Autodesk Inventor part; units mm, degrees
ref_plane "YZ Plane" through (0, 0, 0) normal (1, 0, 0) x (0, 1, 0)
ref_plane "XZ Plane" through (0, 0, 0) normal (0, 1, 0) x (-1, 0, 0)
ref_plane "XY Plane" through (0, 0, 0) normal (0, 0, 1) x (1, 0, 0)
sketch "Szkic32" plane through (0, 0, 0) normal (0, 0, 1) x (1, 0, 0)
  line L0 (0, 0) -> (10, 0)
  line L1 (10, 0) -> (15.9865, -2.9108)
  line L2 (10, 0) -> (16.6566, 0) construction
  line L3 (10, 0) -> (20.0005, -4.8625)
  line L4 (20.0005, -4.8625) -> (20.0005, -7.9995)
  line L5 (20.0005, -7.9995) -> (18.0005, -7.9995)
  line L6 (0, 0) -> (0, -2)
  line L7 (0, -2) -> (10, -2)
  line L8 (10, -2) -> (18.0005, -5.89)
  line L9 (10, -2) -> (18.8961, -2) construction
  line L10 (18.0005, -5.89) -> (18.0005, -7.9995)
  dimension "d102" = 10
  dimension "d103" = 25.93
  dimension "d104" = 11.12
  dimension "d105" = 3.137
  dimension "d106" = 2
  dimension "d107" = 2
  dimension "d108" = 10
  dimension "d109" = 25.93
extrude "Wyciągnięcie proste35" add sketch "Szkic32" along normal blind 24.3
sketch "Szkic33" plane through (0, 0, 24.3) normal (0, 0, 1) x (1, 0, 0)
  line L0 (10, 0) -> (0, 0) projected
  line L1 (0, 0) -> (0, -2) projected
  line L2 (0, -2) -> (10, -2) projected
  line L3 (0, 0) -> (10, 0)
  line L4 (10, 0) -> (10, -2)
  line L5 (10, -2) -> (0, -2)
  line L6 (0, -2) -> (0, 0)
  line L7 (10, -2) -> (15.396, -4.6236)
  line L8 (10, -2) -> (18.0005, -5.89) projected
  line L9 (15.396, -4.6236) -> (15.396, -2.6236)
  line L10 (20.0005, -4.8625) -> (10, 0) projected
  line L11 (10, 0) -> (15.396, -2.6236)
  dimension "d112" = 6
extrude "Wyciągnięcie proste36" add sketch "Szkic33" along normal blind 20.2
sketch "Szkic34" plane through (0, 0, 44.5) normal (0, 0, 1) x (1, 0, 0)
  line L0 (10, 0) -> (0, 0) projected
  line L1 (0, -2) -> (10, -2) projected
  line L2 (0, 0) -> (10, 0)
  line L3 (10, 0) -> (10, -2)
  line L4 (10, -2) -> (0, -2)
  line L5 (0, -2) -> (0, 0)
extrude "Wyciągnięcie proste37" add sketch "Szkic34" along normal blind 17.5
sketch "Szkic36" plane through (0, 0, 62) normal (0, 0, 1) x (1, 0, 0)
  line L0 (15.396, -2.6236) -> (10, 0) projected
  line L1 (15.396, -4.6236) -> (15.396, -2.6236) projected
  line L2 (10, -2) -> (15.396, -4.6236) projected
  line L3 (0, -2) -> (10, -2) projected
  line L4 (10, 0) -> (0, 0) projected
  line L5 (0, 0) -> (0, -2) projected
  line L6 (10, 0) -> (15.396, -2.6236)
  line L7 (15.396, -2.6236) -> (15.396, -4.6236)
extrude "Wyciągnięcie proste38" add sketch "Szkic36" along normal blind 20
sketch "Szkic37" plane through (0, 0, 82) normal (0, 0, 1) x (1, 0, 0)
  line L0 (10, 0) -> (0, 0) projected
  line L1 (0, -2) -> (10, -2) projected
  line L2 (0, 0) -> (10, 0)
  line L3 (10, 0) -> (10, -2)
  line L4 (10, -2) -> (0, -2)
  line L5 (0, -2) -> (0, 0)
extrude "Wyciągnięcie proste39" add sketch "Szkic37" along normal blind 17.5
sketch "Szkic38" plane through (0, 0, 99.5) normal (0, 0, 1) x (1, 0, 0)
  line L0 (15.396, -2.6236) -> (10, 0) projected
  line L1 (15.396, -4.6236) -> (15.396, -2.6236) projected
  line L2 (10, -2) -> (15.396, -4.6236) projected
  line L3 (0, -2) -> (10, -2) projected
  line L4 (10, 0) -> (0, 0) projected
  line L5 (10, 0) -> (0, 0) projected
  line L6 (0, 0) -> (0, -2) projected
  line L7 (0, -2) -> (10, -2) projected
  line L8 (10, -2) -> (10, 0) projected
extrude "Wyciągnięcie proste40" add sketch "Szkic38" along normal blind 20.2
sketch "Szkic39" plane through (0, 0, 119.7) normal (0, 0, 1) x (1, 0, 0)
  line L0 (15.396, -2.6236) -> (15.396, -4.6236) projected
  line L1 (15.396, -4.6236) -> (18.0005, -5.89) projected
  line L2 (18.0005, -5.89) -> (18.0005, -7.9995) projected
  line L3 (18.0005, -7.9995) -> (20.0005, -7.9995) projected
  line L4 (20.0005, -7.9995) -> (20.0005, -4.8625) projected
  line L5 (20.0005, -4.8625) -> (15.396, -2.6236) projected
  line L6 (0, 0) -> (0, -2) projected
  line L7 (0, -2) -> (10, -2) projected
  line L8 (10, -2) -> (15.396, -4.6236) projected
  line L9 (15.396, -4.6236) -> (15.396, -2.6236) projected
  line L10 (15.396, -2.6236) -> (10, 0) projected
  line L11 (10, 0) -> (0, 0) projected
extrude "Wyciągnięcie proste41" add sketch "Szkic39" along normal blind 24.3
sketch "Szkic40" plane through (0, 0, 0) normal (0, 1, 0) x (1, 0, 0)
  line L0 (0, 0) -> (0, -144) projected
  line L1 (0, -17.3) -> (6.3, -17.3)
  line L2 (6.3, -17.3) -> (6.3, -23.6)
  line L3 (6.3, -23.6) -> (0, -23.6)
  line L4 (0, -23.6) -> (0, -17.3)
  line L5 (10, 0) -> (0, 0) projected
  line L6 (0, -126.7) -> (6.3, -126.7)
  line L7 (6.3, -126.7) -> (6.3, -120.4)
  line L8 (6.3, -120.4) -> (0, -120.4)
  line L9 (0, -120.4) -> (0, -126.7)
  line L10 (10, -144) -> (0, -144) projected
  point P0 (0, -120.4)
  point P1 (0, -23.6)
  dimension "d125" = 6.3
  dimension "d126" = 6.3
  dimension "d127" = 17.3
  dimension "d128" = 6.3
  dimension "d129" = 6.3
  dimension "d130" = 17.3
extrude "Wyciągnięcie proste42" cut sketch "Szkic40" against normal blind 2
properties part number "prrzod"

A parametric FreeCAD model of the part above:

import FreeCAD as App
import Part
import Sketcher
from FreeCAD import Vector
Q = App.Units.Quantity

doc = App.newDocument("Part")
body = doc.addObject("PartDesign::Body", "Body")

sketch1 = body.newObject("Sketcher::SketchObject", "Sketch")
sketch1.AttachmentSupport = (doc.getObject("XY_Plane"), [""])
sketch1.MapMode = "FlatFace"
sketch1.addGeometry(Part.LineSegment(Vector(10, 0, 0), Vector(0, 0, 0)), False)
sketch1.addGeometry(Part.LineSegment(Vector(0, 0, 0), Vector(0, -2, 0)), False)
sketch1.addGeometry(Part.LineSegment(Vector(0, -2, 0), Vector(10, -2, 0)), False)
sketch1.addGeometry(Part.LineSegment(Vector(10, -2, 0), Vector(18, -5.9, 0)), False)
sketch1.addGeometry(Part.LineSegment(Vector(18, -5.9, 0), Vector(18, -8, 0)), False)
sketch1.addGeometry(Part.LineSegment(Vector(18, -8, 0), Vector(20, -8, 0)), False)
sketch1.addGeometry(Part.LineSegment(Vector(20, -8, 0), Vector(20, -4.9, 0)), False)
sketch1.addGeometry(Part.LineSegment(Vector(20, -4.9, 0), Vector(16, -2.9, 0)), False)
sketch1.addGeometry(Part.LineSegment(Vector(16, -2.9, 0), Vector(10, 0, 0)), False)
sketch1.addConstraint(Sketcher.Constraint("Coincident", 0, 2, 1, 1))
sketch1.addConstraint(Sketcher.Constraint("Coincident", 1, 2, 2, 1))
sketch1.addConstraint(Sketcher.Constraint("Coincident", 2, 2, 3, 1))
sketch1.addConstraint(Sketcher.Constraint("Coincident", 3, 2, 4, 1))
sketch1.addConstraint(Sketcher.Constraint("Coincident", 4, 2, 5, 1))
sketch1.addConstraint(Sketcher.Constraint("Coincident", 5, 2, 6, 1))
sketch1.addConstraint(Sketcher.Constraint("Coincident", 6, 2, 7, 1))
sketch1.addConstraint(Sketcher.Constraint("Coincident", 7, 2, 8, 1))
sketch1.addConstraint(Sketcher.Constraint("Coincident", 8, 2, 0, 1))
sketch1.addConstraint(Sketcher.Constraint("Horizontal", 0))
sketch1.addConstraint(Sketcher.Constraint("Vertical", 1))
sketch1.addConstraint(Sketcher.Constraint("Horizontal", 2))
sketch1.addConstraint(Sketcher.Constraint("Vertical", 4))
sketch1.addConstraint(Sketcher.Constraint("Horizontal", 5))
sketch1.addConstraint(Sketcher.Constraint("Vertical", 6))
sketch1.addConstraint(Sketcher.Constraint("Coincident", 0, 2, -1, 1))
sketch1.addConstraint(Sketcher.Constraint("Parallel", 3, 7))
sketch1.addConstraint(Sketcher.Constraint("Parallel", 7, 8))
sketch1.addConstraint(Sketcher.Constraint("Vertical", 2, 2, 8, 2))
sketch1.addConstraint(Sketcher.Constraint("Equal", 5, 1))
sketch1.addConstraint(Sketcher.Constraint("DistanceX", 0, 2, 0, 1, 10.0))
sketch1.addConstraint(Sketcher.Constraint("DistanceX", 5, 1, 5, 2, 2.0))
sketch1.addConstraint(Sketcher.Constraint("Angle", 3, Q("-25.93 deg")))
sketch1.addConstraint(Sketcher.Constraint("DistanceY", 6, 1, 6, 2, 3.137))
sketch1.addConstraint(Sketcher.Constraint("DistanceX", 2, 2, 5, 2, 10.0005))
sketch1.addConstraint(Sketcher.Constraint("DistanceX", 7, 2, 3, 2, 2.014))
pad1 = body.newObject("PartDesign::Pad", "Pad")
pad1.Profile = sketch1
pad1.Length = 24.3

sketch2 = body.newObject("Sketcher::SketchObject", "Sketch001")
sketch2.AttachmentSupport = (doc.getObject("XY_Plane"), [""])
sketch2.MapMode = "FlatFace"
sketch2.AttachmentOffset = App.Placement(Vector(0, 0, 24.3), App.Rotation())
sketch2.addGeometry(Part.LineSegment(Vector(0, -2, 0), Vector(10, -2, 0)), False)
sketch2.addGeometry(Part.LineSegment(Vector(10, -2, 0), Vector(15.4, -4.6, 0)), False)
sketch2.addGeometry(Part.LineSegment(Vector(15.4, -4.6, 0), Vector(15.4, -2.6, 0)), False)
sketch2.addGeometry(Part.LineSegment(Vector(15.4, -2.6, 0), Vector(10, 0, 0)), False)
sketch2.addGeometry(Part.LineSegment(Vector(10, 0, 0), Vector(0, 0, 0)), False)
sketch2.addGeometry(Part.LineSegment(Vector(0, 0, 0), Vector(0, -2, 0)), False)
sketch2.addConstraint(Sketcher.Constraint("Coincident", 0, 2, 1, 1))
sketch2.addConstraint(Sketcher.Constraint("Coincident", 1, 2, 2, 1))
sketch2.addConstraint(Sketcher.Constraint("Coincident", 2, 2, 3, 1))
sketch2.addConstraint(Sketcher.Constraint("Coincident", 3, 2, 4, 1))
sketch2.addConstraint(Sketcher.Constraint("Coincident", 4, 2, 5, 1))
sketch2.addConstraint(Sketcher.Constraint("Coincident", 5, 2, 0, 1))
sketch2.addConstraint(Sketcher.Constraint("Horizontal", 0))
sketch2.addConstraint(Sketcher.Constraint("Vertical", 2))
sketch2.addConstraint(Sketcher.Constraint("Horizontal", 4))
sketch2.addConstraint(Sketcher.Constraint("Vertical", 5))
sketch2.addConstraint(Sketcher.Constraint("Coincident", 4, 2, -1, 1))
sketch2.addConstraint(Sketcher.Constraint("Parallel", 1, 3))
sketch2.addConstraint(Sketcher.Constraint("Vertical", 0, 2, 3, 2))
sketch2.addConstraint(Sketcher.Constraint("Distance", 1, 6.0))
sketch2.addConstraint(Sketcher.Constraint("DistanceX", 0, 1, 0, 2, 10.0))
sketch2.addConstraint(Sketcher.Constraint("DistanceY", 2, 1, 2, 2, 2.0))
sketch2.addConstraint(Sketcher.Constraint("Angle", 1, Q("-25.9296 deg")))
pad2 = body.newObject("PartDesign::Pad", "Pad001")
pad2.Profile = sketch2
pad2.Length = 20.2

sketch3 = body.newObject("Sketcher::SketchObject", "Sketch002")
sketch3.AttachmentSupport = (doc.getObject("XY_Plane"), [""])
sketch3.MapMode = "FlatFace"
sketch3.AttachmentOffset = App.Placement(Vector(0, 0, 44.5), App.Rotation())
sketch3.addGeometry(Part.LineSegment(Vector(10, -2, 0), Vector(10, 0, 0)), False)
sketch3.addGeometry(Part.LineSegment(Vector(10, 0, 0), Vector(0, 0, 0)), False)
sketch3.addGeometry(Part.LineSegment(Vector(0, 0, 0), Vector(0, -2, 0)), False)
sketch3.addGeometry(Part.LineSegment(Vector(0, -2, 0), Vector(10, -2, 0)), False)
sketch3.addConstraint(Sketcher.Constraint("Coincident", 0, 2, 1, 1))
sketch3.addConstraint(Sketcher.Constraint("Coincident", 1, 2, 2, 1))
sketch3.addConstraint(Sketcher.Constraint("Coincident", 2, 2, 3, 1))
sketch3.addConstraint(Sketcher.Constraint("Coincident", 3, 2, 0, 1))
sketch3.addConstraint(Sketcher.Constraint("Vertical", 0))
sketch3.addConstraint(Sketcher.Constraint("Horizontal", 1))
sketch3.addConstraint(Sketcher.Constraint("Vertical", 2))
sketch3.addConstraint(Sketcher.Constraint("Horizontal", 3))
sketch3.addConstraint(Sketcher.Constraint("Coincident", 1, 2, -1, 1))
sketch3.addConstraint(Sketcher.Constraint("DistanceX", 1, 2, 1, 1, 10.0))
sketch3.addConstraint(Sketcher.Constraint("DistanceY", 0, 1, 0, 2, 2.0))
pad3 = body.newObject("PartDesign::Pad", "Pad002")
pad3.Profile = sketch3
pad3.Length = 17.5

sketch4 = body.newObject("Sketcher::SketchObject", "Sketch003")
sketch4.AttachmentSupport = (doc.getObject("XY_Plane"), [""])
sketch4.MapMode = "FlatFace"
sketch4.AttachmentOffset = App.Placement(Vector(0, 0, 62), App.Rotation())
sketch4.addGeometry(Part.LineSegment(Vector(15.4, -4.6, 0), Vector(15.4, -2.6, 0)), False)
sketch4.addGeometry(Part.LineSegment(Vector(15.4, -2.6, 0), Vector(10, 0, 0)), False)
sketch4.addGeometry(Part.LineSegment(Vector(10, 0, 0), Vector(0, 0, 0)), False)
sketch4.addGeometry(Part.LineSegment(Vector(0, 0, 0), Vector(0, -2, 0)), False)
sketch4.addGeometry(Part.LineSegment(Vector(0, -2, 0), Vector(10, -2, 0)), False)
sketch4.addGeometry(Part.LineSegment(Vector(10, -2, 0), Vector(15.4, -4.6, 0)), False)
sketch4.addConstraint(Sketcher.Constraint("Coincident", 0, 2, 1, 1))
sketch4.addConstraint(Sketcher.Constraint("Coincident", 1, 2, 2, 1))
sketch4.addConstraint(Sketcher.Constraint("Coincident", 2, 2, 3, 1))
sketch4.addConstraint(Sketcher.Constraint("Coincident", 3, 2, 4, 1))
sketch4.addConstraint(Sketcher.Constraint("Coincident", 4, 2, 5, 1))
sketch4.addConstraint(Sketcher.Constraint("Coincident", 5, 2, 0, 1))
sketch4.addConstraint(Sketcher.Constraint("Vertical", 0))
sketch4.addConstraint(Sketcher.Constraint("Horizontal", 2))
sketch4.addConstraint(Sketcher.Constraint("Vertical", 3))
sketch4.addConstraint(Sketcher.Constraint("Horizontal", 4))
sketch4.addConstraint(Sketcher.Constraint("Coincident", 2, 2, -1, 1))
sketch4.addConstraint(Sketcher.Constraint("Parallel", 1, 5))
sketch4.addConstraint(Sketcher.Constraint("Vertical", 1, 2, 4, 2))
sketch4.addConstraint(Sketcher.Constraint("DistanceX", 2, 2, 2, 1, 10.0))
sketch4.addConstraint(Sketcher.Constraint("DistanceY", 0, 1, 0, 2, 2.0))
sketch4.addConstraint(Sketcher.Constraint("Distance", 1, 6.0))
sketch4.addConstraint(Sketcher.Constraint("Angle", 1, Q("154.0704 deg")))
pad4 = body.newObject("PartDesign::Pad", "Pad003")
pad4.Profile = sketch4
pad4.Length = 20

sketch5 = body.newObject("Sketcher::SketchObject", "Sketch004")
sketch5.AttachmentSupport = (doc.getObject("XY_Plane"), [""])
sketch5.MapMode = "FlatFace"
sketch5.AttachmentOffset = App.Placement(Vector(0, 0, 82), App.Rotation())
sketch5.addGeometry(Part.LineSegment(Vector(10, -2, 0), Vector(10, 0, 0)), False)
sketch5.addGeometry(Part.LineSegment(Vector(10, 0, 0), Vector(0, 0, 0)), False)
sketch5.addGeometry(Part.LineSegment(Vector(0, 0, 0), Vector(0, -2, 0)), False)
sketch5.addGeometry(Part.LineSegment(Vector(0, -2, 0), Vector(10, -2, 0)), False)
sketch5.addConstraint(Sketcher.Constraint("Coincident", 0, 2, 1, 1))
sketch5.addConstraint(Sketcher.Constraint("Coincident", 1, 2, 2, 1))
sketch5.addConstraint(Sketcher.Constraint("Coincident", 2, 2, 3, 1))
sketch5.addConstraint(Sketcher.Constraint("Coincident", 3, 2, 0, 1))
sketch5.addConstraint(Sketcher.Constraint("Vertical", 0))
sketch5.addConstraint(Sketcher.Constraint("Horizontal", 1))
sketch5.addConstraint(Sketcher.Constraint("Vertical", 2))
sketch5.addConstraint(Sketcher.Constraint("Horizontal", 3))
sketch5.addConstraint(Sketcher.Constraint("Coincident", 1, 2, -1, 1))
sketch5.addConstraint(Sketcher.Constraint("DistanceX", 1, 2, 1, 1, 10.0))
sketch5.addConstraint(Sketcher.Constraint("DistanceY", 0, 1, 0, 2, 2.0))
pad5 = body.newObject("PartDesign::Pad", "Pad004")
pad5.Profile = sketch5
pad5.Length = 17.5

sketch6 = body.newObject("Sketcher::SketchObject", "Sketch005")
sketch6.AttachmentSupport = (doc.getObject("XY_Plane"), [""])
sketch6.MapMode = "FlatFace"
sketch6.AttachmentOffset = App.Placement(Vector(0, 0, 99.5), App.Rotation())
sketch6.addGeometry(Part.LineSegment(Vector(15.4, -4.6, 0), Vector(15.4, -2.6, 0)), False)
sketch6.addGeometry(Part.LineSegment(Vector(15.4, -2.6, 0), Vector(10, 0, 0)), False)
sketch6.addGeometry(Part.LineSegment(Vector(10, 0, 0), Vector(0, 0, 0)), False)
sketch6.addGeometry(Part.LineSegment(Vector(0, 0, 0), Vector(0, -2, 0)), False)
sketch6.addGeometry(Part.LineSegment(Vector(0, -2, 0), Vector(10, -2, 0)), False)
sketch6.addGeometry(Part.LineSegment(Vector(10, -2, 0), Vector(15.4, -4.6, 0)), False)
sketch6.addConstraint(Sketcher.Constraint("Coincident", 0, 2, 1, 1))
sketch6.addConstraint(Sketcher.Constraint("Coincident", 1, 2, 2, 1))
sketch6.addConstraint(Sketcher.Constraint("Coincident", 2, 2, 3, 1))
sketch6.addConstraint(Sketcher.Constraint("Coincident", 3, 2, 4, 1))
sketch6.addConstraint(Sketcher.Constraint("Coincident", 4, 2, 5, 1))
sketch6.addConstraint(Sketcher.Constraint("Coincident", 5, 2, 0, 1))
sketch6.addConstraint(Sketcher.Constraint("Vertical", 0))
sketch6.addConstraint(Sketcher.Constraint("Horizontal", 2))
sketch6.addConstraint(Sketcher.Constraint("Vertical", 3))
sketch6.addConstraint(Sketcher.Constraint("Horizontal", 4))
sketch6.addConstraint(Sketcher.Constraint("Coincident", 2, 2, -1, 1))
sketch6.addConstraint(Sketcher.Constraint("Parallel", 1, 5))
sketch6.addConstraint(Sketcher.Constraint("Vertical", 1, 2, 4, 2))
sketch6.addConstraint(Sketcher.Constraint("DistanceX", 2, 2, 2, 1, 10.0))
sketch6.addConstraint(Sketcher.Constraint("DistanceY", 0, 1, 0, 2, 2.0))
sketch6.addConstraint(Sketcher.Constraint("Distance", 1, 6.0))
sketch6.addConstraint(Sketcher.Constraint("Angle", 1, Q("154.0704 deg")))
pad6 = body.newObject("PartDesign::Pad", "Pad005")
pad6.Profile = sketch6
pad6.Length = 20.2

sketch7 = body.newObject("Sketcher::SketchObject", "Sketch006")
sketch7.AttachmentSupport = (doc.getObject("XY_Plane"), [""])
sketch7.MapMode = "FlatFace"
sketch7.AttachmentOffset = App.Placement(Vector(0, 0, 119.7), App.Rotation())
sketch7.addGeometry(Part.LineSegment(Vector(20, -4.9, 0), Vector(15.4, -2.6, 0)), False)
sketch7.addGeometry(Part.LineSegment(Vector(15.4, -2.6, 0), Vector(10, 0, 0)), False)
sketch7.addGeometry(Part.LineSegment(Vector(10, 0, 0), Vector(0, 0, 0)), False)
sketch7.addGeometry(Part.LineSegment(Vector(0, 0, 0), Vector(0, -2, 0)), False)
sketch7.addGeometry(Part.LineSegment(Vector(0, -2, 0), Vector(10, -2, 0)), False)
sketch7.addGeometry(Part.LineSegment(Vector(10, -2, 0), Vector(15.4, -4.6, 0)), False)
sketch7.addGeometry(Part.LineSegment(Vector(15.4, -4.6, 0), Vector(18, -5.9, 0)), False)
sketch7.addGeometry(Part.LineSegment(Vector(18, -5.9, 0), Vector(18, -8, 0)), False)
sketch7.addGeometry(Part.LineSegment(Vector(18, -8, 0), Vector(20, -8, 0)), False)
sketch7.addGeometry(Part.LineSegment(Vector(20, -8, 0), Vector(20, -4.9, 0)), False)
sketch7.addConstraint(Sketcher.Constraint("Coincident", 0, 2, 1, 1))
sketch7.addConstraint(Sketcher.Constraint("Coincident", 1, 2, 2, 1))
sketch7.addConstraint(Sketcher.Constraint("Coincident", 2, 2, 3, 1))
sketch7.addConstraint(Sketcher.Constraint("Coincident", 3, 2, 4, 1))
sketch7.addConstraint(Sketcher.Constraint("Coincident", 4, 2, 5, 1))
sketch7.addConstraint(Sketcher.Constraint("Coincident", 5, 2, 6, 1))
sketch7.addConstraint(Sketcher.Constraint("Coincident", 6, 2, 7, 1))
sketch7.addConstraint(Sketcher.Constraint("Coincident", 7, 2, 8, 1))
sketch7.addConstraint(Sketcher.Constraint("Coincident", 8, 2, 9, 1))
sketch7.addConstraint(Sketcher.Constraint("Coincident", 9, 2, 0, 1))
sketch7.addConstraint(Sketcher.Constraint("Horizontal", 2))
sketch7.addConstraint(Sketcher.Constraint("Vertical", 3))
sketch7.addConstraint(Sketcher.Constraint("Horizontal", 4))
sketch7.addConstraint(Sketcher.Constraint("Vertical", 7))
sketch7.addConstraint(Sketcher.Constraint("Horizontal", 8))
sketch7.addConstraint(Sketcher.Constraint("Vertical", 9))
sketch7.addConstraint(Sketcher.Constraint("Coincident", 2, 2, -1, 1))
sketch7.addConstraint(Sketcher.Constraint("Parallel", 0, 1))
sketch7.addConstraint(Sketcher.Constraint("Parallel", 1, 5))
sketch7.addConstraint(Sketcher.Constraint("Parallel", 5, 6))
sketch7.addConstraint(Sketcher.Constraint("Vertical", 1, 2, 4, 2))
sketch7.addConstraint(Sketcher.Constraint("Vertical", 0, 2, 5, 2))
sketch7.addConstraint(Sketcher.Constraint("Equal", 8, 3))
sketch7.addConstraint(Sketcher.Constraint("DistanceX", 2, 2, 2, 1, 10.0))
sketch7.addConstraint(Sketcher.Constraint("DistanceX", 8, 1, 8, 2, 2.0))
sketch7.addConstraint(Sketcher.Constraint("Distance", 1, 6.0))
sketch7.addConstraint(Sketcher.Constraint("Angle", 0, Q("154.069 deg")))
sketch7.addConstraint(Sketcher.Constraint("Distance", 0, 5.12))
sketch7.addConstraint(Sketcher.Constraint("DistanceY", 9, 1, 9, 2, 3.137))
pad7 = body.newObject("PartDesign::Pad", "Pad006")
pad7.Profile = sketch7
pad7.Length = 24.3

sketch8 = body.newObject("Sketcher::SketchObject", "Sketch007")
sketch8.AttachmentSupport = (doc.getObject("XZ_Plane"), [""])
sketch8.MapMode = "FlatFace"
sketch8.addGeometry(Part.LineSegment(Vector(6, 17, 0), Vector(0, 17, 0)), False)
sketch8.addGeometry(Part.LineSegment(Vector(0, 17, 0), Vector(0, 24, 0)), False)
sketch8.addGeometry(Part.LineSegment(Vector(0, 24, 0), Vector(6, 24, 0)), False)
sketch8.addGeometry(Part.LineSegment(Vector(6, 24, 0), Vector(6, 17, 0)), False)
sketch8.addGeometry(Part.LineSegment(Vector(6, 120, 0), Vector(0, 120, 0)), False)
sketch8.addGeometry(Part.LineSegment(Vector(0, 120, 0), Vector(0, 127, 0)), False)
sketch8.addGeometry(Part.LineSegment(Vector(0, 127, 0), Vector(6, 127, 0)), False)
sketch8.addGeometry(Part.LineSegment(Vector(6, 127, 0), Vector(6, 120, 0)), False)
sketch8.addConstraint(Sketcher.Constraint("Coincident", 0, 2, 1, 1))
sketch8.addConstraint(Sketcher.Constraint("Coincident", 1, 2, 2, 1))
sketch8.addConstraint(Sketcher.Constraint("Coincident", 2, 2, 3, 1))
sketch8.addConstraint(Sketcher.Constraint("Coincident", 3, 2, 0, 1))
sketch8.addConstraint(Sketcher.Constraint("Coincident", 4, 2, 5, 1))
sketch8.addConstraint(Sketcher.Constraint("Coincident", 5, 2, 6, 1))
sketch8.addConstraint(Sketcher.Constraint("Coincident", 6, 2, 7, 1))
sketch8.addConstraint(Sketcher.Constraint("Coincident", 7, 2, 4, 1))
sketch8.addConstraint(Sketcher.Constraint("Horizontal", 0))
sketch8.addConstraint(Sketcher.Constraint("Vertical", 1))
sketch8.addConstraint(Sketcher.Constraint("Horizontal", 2))
sketch8.addConstraint(Sketcher.Constraint("Vertical", 3))
sketch8.addConstraint(Sketcher.Constraint("Horizontal", 4))
sketch8.addConstraint(Sketcher.Constraint("Vertical", 5))
sketch8.addConstraint(Sketcher.Constraint("Horizontal", 6))
sketch8.addConstraint(Sketcher.Constraint("Vertical", 7))
sketch8.addConstraint(Sketcher.Constraint("PointOnObject", 0, 2, -2))
sketch8.addConstraint(Sketcher.Constraint("PointOnObject", 4, 2, -2))
sketch8.addConstraint(Sketcher.Constraint("Vertical", 3, 2, 6, 2))
sketch8.addConstraint(Sketcher.Constraint("Equal", 6, 1))
sketch8.addConstraint(Sketcher.Constraint("Equal", 3, 5))
sketch8.addConstraint(Sketcher.Constraint("DistanceX", 0, 2, 0, 1, 6.3))
sketch8.addConstraint(Sketcher.Constraint("DistanceY", -1, 1, 0, 2, 17.3))
sketch8.addConstraint(Sketcher.Constraint("DistanceY", -1, 1, 4, 2, 120.4))
pocket1 = body.newObject("PartDesign::Pocket", "Pocket")
pocket1.Profile = sketch8
pocket1.Length = 2
pocket1.Reversed = True

doc.recompute()
